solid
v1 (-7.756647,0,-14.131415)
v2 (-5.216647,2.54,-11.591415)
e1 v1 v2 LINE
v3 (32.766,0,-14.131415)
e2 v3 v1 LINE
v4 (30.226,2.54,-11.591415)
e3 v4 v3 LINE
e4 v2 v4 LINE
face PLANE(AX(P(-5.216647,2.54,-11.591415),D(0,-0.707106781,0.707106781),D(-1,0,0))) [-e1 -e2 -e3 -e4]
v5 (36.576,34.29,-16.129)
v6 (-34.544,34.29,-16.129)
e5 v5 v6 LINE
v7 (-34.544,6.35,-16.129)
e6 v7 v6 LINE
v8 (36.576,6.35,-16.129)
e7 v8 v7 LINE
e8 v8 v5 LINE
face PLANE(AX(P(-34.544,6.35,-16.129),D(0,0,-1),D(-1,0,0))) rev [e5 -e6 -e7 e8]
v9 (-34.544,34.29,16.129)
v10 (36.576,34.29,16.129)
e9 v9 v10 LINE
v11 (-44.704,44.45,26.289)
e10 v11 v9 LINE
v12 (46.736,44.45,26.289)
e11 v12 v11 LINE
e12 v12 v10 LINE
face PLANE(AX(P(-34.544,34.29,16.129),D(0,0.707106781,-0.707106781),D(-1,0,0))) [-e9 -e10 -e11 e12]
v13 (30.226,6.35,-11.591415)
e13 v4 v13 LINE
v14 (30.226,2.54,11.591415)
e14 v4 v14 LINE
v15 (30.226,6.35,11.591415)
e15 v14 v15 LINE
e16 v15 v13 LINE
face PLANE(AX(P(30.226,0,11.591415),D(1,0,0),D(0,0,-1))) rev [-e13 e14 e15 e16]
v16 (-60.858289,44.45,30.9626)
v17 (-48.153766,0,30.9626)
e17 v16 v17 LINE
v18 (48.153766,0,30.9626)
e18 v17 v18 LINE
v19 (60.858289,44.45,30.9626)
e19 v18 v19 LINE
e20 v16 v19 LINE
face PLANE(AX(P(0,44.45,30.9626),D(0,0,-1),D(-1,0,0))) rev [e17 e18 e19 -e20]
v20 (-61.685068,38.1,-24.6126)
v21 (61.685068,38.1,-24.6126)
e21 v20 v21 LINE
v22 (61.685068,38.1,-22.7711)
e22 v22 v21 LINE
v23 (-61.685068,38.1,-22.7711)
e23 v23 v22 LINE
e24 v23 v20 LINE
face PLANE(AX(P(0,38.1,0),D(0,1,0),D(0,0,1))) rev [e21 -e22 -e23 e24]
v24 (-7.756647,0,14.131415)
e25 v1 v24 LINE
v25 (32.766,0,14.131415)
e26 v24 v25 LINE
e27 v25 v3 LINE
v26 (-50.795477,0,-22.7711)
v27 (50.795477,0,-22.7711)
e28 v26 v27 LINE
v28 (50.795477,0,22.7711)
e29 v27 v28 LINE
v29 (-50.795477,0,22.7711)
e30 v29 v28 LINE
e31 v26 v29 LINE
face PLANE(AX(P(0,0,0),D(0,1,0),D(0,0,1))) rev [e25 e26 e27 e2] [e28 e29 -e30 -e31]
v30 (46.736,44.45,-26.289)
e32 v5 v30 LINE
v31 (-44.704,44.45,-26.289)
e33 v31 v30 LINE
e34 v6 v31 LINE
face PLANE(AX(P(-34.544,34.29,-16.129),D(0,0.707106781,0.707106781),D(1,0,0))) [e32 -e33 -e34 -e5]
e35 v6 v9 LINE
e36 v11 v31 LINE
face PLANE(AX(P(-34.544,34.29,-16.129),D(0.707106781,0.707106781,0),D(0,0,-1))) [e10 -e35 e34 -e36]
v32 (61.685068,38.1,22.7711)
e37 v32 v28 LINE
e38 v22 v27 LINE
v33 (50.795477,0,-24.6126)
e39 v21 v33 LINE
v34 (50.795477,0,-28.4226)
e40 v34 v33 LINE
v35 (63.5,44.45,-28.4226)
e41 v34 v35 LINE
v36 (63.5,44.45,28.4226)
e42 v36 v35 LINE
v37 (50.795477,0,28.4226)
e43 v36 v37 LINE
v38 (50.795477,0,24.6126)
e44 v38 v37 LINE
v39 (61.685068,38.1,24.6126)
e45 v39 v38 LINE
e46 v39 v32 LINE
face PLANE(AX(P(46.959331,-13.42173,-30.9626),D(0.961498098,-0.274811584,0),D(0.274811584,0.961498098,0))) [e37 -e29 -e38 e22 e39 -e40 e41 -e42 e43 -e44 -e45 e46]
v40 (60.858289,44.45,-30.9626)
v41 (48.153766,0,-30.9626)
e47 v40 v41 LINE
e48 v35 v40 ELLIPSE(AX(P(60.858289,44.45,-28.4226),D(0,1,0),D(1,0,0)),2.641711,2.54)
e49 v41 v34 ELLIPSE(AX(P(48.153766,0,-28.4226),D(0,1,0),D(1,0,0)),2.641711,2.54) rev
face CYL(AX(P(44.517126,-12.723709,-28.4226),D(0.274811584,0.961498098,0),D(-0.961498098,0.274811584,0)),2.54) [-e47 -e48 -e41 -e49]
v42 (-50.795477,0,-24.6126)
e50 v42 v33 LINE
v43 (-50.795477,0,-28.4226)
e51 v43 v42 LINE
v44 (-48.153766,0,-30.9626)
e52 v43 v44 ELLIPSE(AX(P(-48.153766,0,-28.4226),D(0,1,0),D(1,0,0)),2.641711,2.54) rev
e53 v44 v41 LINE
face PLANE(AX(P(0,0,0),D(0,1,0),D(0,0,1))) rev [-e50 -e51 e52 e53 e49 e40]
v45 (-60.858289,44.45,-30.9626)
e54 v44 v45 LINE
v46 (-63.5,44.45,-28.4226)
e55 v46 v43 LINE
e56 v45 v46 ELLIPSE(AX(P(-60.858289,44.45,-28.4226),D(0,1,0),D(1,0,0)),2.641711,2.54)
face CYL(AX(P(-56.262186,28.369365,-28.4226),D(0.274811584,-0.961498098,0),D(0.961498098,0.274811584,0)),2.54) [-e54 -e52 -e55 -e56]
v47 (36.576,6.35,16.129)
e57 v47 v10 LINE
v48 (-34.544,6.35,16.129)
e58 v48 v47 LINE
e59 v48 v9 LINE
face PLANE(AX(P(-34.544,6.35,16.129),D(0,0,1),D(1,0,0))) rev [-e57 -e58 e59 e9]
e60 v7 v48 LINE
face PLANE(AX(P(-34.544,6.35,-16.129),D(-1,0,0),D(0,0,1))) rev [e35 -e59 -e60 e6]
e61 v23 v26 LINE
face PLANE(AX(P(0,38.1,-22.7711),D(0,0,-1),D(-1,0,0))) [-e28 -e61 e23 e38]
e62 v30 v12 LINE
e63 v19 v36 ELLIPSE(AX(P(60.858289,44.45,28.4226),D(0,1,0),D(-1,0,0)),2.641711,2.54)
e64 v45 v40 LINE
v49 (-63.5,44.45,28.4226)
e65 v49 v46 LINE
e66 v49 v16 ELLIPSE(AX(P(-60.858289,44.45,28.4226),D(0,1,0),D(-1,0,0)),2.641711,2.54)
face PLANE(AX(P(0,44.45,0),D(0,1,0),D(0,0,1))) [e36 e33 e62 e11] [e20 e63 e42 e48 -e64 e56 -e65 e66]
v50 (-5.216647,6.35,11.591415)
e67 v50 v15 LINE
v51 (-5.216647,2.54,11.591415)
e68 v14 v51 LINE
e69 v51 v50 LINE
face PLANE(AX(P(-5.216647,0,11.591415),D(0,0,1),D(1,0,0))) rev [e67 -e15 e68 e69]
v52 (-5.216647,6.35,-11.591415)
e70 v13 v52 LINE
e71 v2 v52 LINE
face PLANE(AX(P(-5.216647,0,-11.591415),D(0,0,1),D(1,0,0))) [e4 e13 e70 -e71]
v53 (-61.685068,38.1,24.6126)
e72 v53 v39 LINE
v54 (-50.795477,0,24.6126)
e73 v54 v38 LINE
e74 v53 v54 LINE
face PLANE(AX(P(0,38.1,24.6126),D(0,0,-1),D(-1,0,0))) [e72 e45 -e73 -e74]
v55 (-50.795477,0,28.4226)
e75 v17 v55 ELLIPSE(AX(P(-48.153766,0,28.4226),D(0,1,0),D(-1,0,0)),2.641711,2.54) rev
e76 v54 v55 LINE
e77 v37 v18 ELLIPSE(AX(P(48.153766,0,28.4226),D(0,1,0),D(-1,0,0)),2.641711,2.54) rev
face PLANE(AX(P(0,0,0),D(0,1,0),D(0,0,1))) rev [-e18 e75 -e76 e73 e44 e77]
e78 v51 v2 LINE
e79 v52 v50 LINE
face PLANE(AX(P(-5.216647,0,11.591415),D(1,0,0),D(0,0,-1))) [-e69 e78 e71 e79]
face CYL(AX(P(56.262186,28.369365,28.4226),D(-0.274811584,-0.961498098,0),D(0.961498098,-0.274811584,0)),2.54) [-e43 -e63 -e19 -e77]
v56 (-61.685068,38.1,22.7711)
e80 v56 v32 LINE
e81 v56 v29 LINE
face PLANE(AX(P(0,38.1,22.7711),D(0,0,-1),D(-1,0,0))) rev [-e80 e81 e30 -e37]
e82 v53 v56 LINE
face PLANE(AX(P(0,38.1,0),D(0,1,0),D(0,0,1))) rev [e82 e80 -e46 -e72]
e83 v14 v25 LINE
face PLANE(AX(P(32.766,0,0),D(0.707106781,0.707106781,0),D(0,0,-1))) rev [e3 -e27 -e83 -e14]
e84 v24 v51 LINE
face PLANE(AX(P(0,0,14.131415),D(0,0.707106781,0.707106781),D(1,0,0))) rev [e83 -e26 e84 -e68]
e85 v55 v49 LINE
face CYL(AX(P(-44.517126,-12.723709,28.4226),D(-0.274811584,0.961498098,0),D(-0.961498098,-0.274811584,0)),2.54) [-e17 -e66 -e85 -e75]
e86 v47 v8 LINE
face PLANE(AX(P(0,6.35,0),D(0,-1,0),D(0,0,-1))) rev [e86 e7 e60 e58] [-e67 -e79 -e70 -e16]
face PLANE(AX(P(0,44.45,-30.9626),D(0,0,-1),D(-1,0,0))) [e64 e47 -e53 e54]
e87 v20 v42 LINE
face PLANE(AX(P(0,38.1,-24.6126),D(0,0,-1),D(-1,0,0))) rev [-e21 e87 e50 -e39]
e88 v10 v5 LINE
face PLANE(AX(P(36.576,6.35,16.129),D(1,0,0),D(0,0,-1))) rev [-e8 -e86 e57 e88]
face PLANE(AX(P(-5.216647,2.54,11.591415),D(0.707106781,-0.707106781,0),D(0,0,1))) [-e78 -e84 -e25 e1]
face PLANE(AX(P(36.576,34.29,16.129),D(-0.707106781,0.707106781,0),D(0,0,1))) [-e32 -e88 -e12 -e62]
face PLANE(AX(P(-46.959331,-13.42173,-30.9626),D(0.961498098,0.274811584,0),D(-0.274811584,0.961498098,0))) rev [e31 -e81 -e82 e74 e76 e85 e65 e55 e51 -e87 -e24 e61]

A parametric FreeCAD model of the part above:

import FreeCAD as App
import Part
import Sketcher
Q = App.Units.Quantity


def edges_at(feature, points):
    """Names of the edges that pass closest to the given points."""
    edges = feature.Shape.Edges
    near = lambda p: min(range(len(edges)), key=lambda i: edges[i].distToShape(Part.Vertex(*p))[0])
    return sorted({f"Edge{near(p) + 1}" for p in points})

doc = App.newDocument("Part")
body = doc.addObject("PartDesign::Body", "Body")

sketch1 = doc.addObject("Sketcher::SketchObject", "Sketch")
body.addObject(sketch1)
sketch1.AttachmentSupport = (doc.XZ_Plane, [""])
sketch1.MapMode = "FlatFace"
sketch1.addGeometry(Part.LineSegment(App.Vector(-64, -31, 0), App.Vector(-64, 31, 0)), False)
sketch1.addGeometry(Part.LineSegment(App.Vector(-64, 31, 0), App.Vector(64, 31, 0)), False)
sketch1.addGeometry(Part.LineSegment(App.Vector(64, 31, 0), App.Vector(64, -31, 0)), False)
sketch1.addGeometry(Part.LineSegment(App.Vector(64, -31, 0), App.Vector(-64, -31, 0)), False)
sketch1.addConstraint(Sketcher.Constraint("Coincident", 0, 2, 1, 1))
sketch1.addConstraint(Sketcher.Constraint("Coincident", 1, 2, 2, 1))
sketch1.addConstraint(Sketcher.Constraint("Coincident", 2, 2, 3, 1))
sketch1.addConstraint(Sketcher.Constraint("Coincident", 3, 2, 0, 1))
sketch1.addConstraint(Sketcher.Constraint("Vertical", 0))
sketch1.addConstraint(Sketcher.Constraint("Horizontal", 1))
sketch1.addConstraint(Sketcher.Constraint("Vertical", 2))
sketch1.addConstraint(Sketcher.Constraint("Horizontal", 3))
sketch1.addConstraint(Sketcher.Constraint("Symmetric", 0, 2, 2, 2, -1, 1))
sketch1.addConstraint(Sketcher.Constraint("DistanceX", 1, 1, 1, 2, Q("5 in")))
sketch1.addConstraint(Sketcher.Constraint("DistanceY", 0, 1, 0, 2, Q("2.438 in")))
pad1 = doc.addObject("PartDesign::Pad", "Pad")
body.addObject(pad1)
pad1.Profile = sketch1
pad1.Length = Q("1.75 in")
pad1.Reversed = True

sketch2 = doc.addObject("Sketcher::SketchObject", "Sketch001")
body.addObject(sketch2)
sketch2.AttachmentSupport = (doc.XZ_Plane, [""])
sketch2.MapMode = "FlatFace"
sketch2.addGeometry(Part.LineSegment(App.Vector(-63.5, -24.6, 0), App.Vector(-63.5, -22.8, 0)), False)
sketch2.addGeometry(Part.LineSegment(App.Vector(-63.5, -22.8, 0), App.Vector(63.5, -22.8, 0)), False)
sketch2.addGeometry(Part.LineSegment(App.Vector(63.5, -22.8, 0), App.Vector(63.5, -24.6, 0)), False)
sketch2.addGeometry(Part.LineSegment(App.Vector(63.5, -24.6, 0), App.Vector(-63.5, -24.6, 0)), False)
sketch2.addGeometry(Part.LineSegment(App.Vector(-63.5, 22.8, 0), App.Vector(-63.5, 24.6, 0)), False)
sketch2.addGeometry(Part.LineSegment(App.Vector(-63.5, 24.6, 0), App.Vector(63.5, 24.6, 0)), False)
sketch2.addGeometry(Part.LineSegment(App.Vector(63.5, 24.6, 0), App.Vector(63.5, 22.8, 0)), False)
sketch2.addGeometry(Part.LineSegment(App.Vector(63.5, 22.8, 0), App.Vector(-63.5, 22.8, 0)), False)
sketch2.addConstraint(Sketcher.Constraint("Coincident", 0, 2, 1, 1))
sketch2.addConstraint(Sketcher.Constraint("Coincident", 1, 2, 2, 1))
sketch2.addConstraint(Sketcher.Constraint("Coincident", 2, 2, 3, 1))
sketch2.addConstraint(Sketcher.Constraint("Coincident", 3, 2, 0, 1))
sketch2.addConstraint(Sketcher.Constraint("Coincident", 4, 2, 5, 1))
sketch2.addConstraint(Sketcher.Constraint("Coincident", 5, 2, 6, 1))
sketch2.addConstraint(Sketcher.Constraint("Coincident", 6, 2, 7, 1))
sketch2.addConstraint(Sketcher.Constraint("Coincident", 7, 2, 4, 1))
sketch2.addConstraint(Sketcher.Constraint("Vertical", 0))
sketch2.addConstraint(Sketcher.Constraint("Horizontal", 1))
sketch2.addConstraint(Sketcher.Constraint("Vertical", 2))
sketch2.addConstraint(Sketcher.Constraint("Horizontal", 3))
sketch2.addConstraint(Sketcher.Constraint("Vertical", 4))
sketch2.addConstraint(Sketcher.Constraint("Horizontal", 5))
sketch2.addConstraint(Sketcher.Constraint("Vertical", 6))
sketch2.addConstraint(Sketcher.Constraint("Horizontal", 7))
sketch2.addConstraint(Sketcher.Constraint("Symmetric", 2, 2, 4, 2, -1, 1))
sketch2.addConstraint(Sketcher.Constraint("Symmetric", 0, 2, 6, 2, -1, 1))
sketch2.addConstraint(Sketcher.Constraint("Vertical", 3, 2, 4, 2))
sketch2.addConstraint(Sketcher.Constraint("DistanceX", 1, 1, 1, 2, Q("5 in")))
sketch2.addConstraint(Sketcher.Constraint("DistanceY", 0, 1, 0, 2, Q("0.0725 in")))
sketch2.addConstraint(Sketcher.Constraint("DistanceY", 2, 2, -1, 1, Q("0.969 in")))
pocket1 = doc.addObject("PartDesign::Pocket", "Pocket")
body.addObject(pocket1)
pocket1.Profile = sketch2
pocket1.Length = Q("1.5 in")

sketch3 = doc.addObject("Sketcher::SketchObject", "Sketch002")
body.addObject(sketch3)
sketch3.AttachmentSupport = (doc.XZ_Plane, [""])
sketch3.MapMode = "FlatFace"
sketch3.AttachmentOffset = App.Placement(App.Vector(0, 0, -1.75 * 25.4), App.Rotation())
sketch3.addGeometry(Part.LineSegment(App.Vector(-35, -16, 0), App.Vector(-35, 16, 0)), False)
sketch3.addGeometry(Part.LineSegment(App.Vector(-35, 16, 0), App.Vector(37, 16, 0)), False)
sketch3.addGeometry(Part.LineSegment(App.Vector(37, 16, 0), App.Vector(37, -16, 0)), False)
sketch3.addGeometry(Part.LineSegment(App.Vector(37, -16, 0), App.Vector(-35, -16, 0)), False)
sketch3.addGeometry(Part.LineSegment(App.Vector(30, 12, 0), App.Vector(-5, 12, 0)), False)
sketch3.addGeometry(Part.LineSegment(App.Vector(-5, 12, 0), App.Vector(-5, -12, 0)), False)
sketch3.addGeometry(Part.LineSegment(App.Vector(-5, -12, 0), App.Vector(30, -12, 0)), False)
sketch3.addGeometry(Part.LineSegment(App.Vector(30, -12, 0), App.Vector(30, 12, 0)), False)
sketch3.addConstraint(Sketcher.Constraint("Coincident", 0, 2, 1, 1))
sketch3.addConstraint(Sketcher.Constraint("Coincident", 1, 2, 2, 1))
sketch3.addConstraint(Sketcher.Constraint("Coincident", 2, 2, 3, 1))
sketch3.addConstraint(Sketcher.Constraint("Coincident", 3, 2, 0, 1))
sketch3.addConstraint(Sketcher.Constraint("Coincident", 4, 2, 5, 1))
sketch3.addConstraint(Sketcher.Constraint("Coincident", 5, 2, 6, 1))
sketch3.addConstraint(Sketcher.Constraint("Coincident", 6, 2, 7, 1))
sketch3.addConstraint(Sketcher.Constraint("Coincident", 7, 2, 4, 1))
sketch3.addConstraint(Sketcher.Constraint("Vertical", 0))
sketch3.addConstraint(Sketcher.Constraint("Horizontal", 1))
sketch3.addConstraint(Sketcher.Constraint("Vertical", 2))
sketch3.addConstraint(Sketcher.Constraint("Horizontal", 3))
sketch3.addConstraint(Sketcher.Constraint("Horizontal", 4))
sketch3.addConstraint(Sketcher.Constraint("Vertical", 5))
sketch3.addConstraint(Sketcher.Constraint("Horizontal", 6))
sketch3.addConstraint(Sketcher.Constraint("Vertical", 7))
sketch3.addConstraint(Sketcher.Constraint("DistanceX", 1, 1, 1, 2, Q("2.8 in")))
sketch3.addConstraint(Sketcher.Constraint("DistanceY", 0, 1, 0, 2, Q("1.27 in")))
sketch3.addConstraint(Sketcher.Constraint("DistanceX", 0, 2, -1, 1, Q("1.36 in")))
sketch3.addConstraint(Sketcher.Constraint("DistanceX", -1, 1, 6, 2, Q("1.19 in")))
sketch3.addConstraint(Sketcher.Constraint("DistanceY", -1, 1, 0, 2, Q("0.635 in")))
sketch3.addConstraint(Sketcher.Constraint("DistanceY", 5, 2, 5, 1, Q("23.182829 mm")))
sketch3.addConstraint(Sketcher.Constraint("DistanceX", 4, 2, 4, 1, Q("35.442647 mm")))
sketch3.addConstraint(Sketcher.Constraint("DistanceY", -1, 1, 4, 2, Q("11.591415 mm")))
pocket2 = doc.addObject("PartDesign::Pocket", "Pocket001")
body.addObject(pocket2)
pocket2.Profile = sketch3
pocket2.Length = Q("1.5 in")
pocket2.Reversed = True
doc.recompute()

chamfer = doc.addObject("PartDesign::Chamfer", "Chamfer")
body.addObject(chamfer)
chamfer.Base = (pocket2, edges_at(pocket2, [
    (36.576, 44.45, 0),
    (1.016, 44.45, -16.129),
    (-34.544, 44.45, 0),
    (1.016, 44.45, 16.129),
]))
chamfer.Size = Q("0.4 in")

sketch4 = doc.addObject("Sketcher::SketchObject", "Sketch003")
body.addObject(sketch4)
sketch4.AttachmentSupport = (doc.XY_Plane, [""])
sketch4.MapMode = "FlatFace"
sketch4.AttachmentOffset = App.Placement(App.Vector(0, 0, 1.219 * 25.4), App.Rotation())
sketch4.addGeometry(Part.LineSegment(App.Vector(-51, 0, 0), App.Vector(-64, 44, 0)), False)
sketch4.addGeometry(Part.LineSegment(App.Vector(-64, 44, 0), App.Vector(-64, 0, 0)), False)
sketch4.addGeometry(Part.LineSegment(App.Vector(-64, 0, 0), App.Vector(-51, 0, 0)), False)
sketch4.addGeometry(Part.LineSegment(App.Vector(64, 44, 0), App.Vector(51, 0, 0)), False)
sketch4.addGeometry(Part.LineSegment(App.Vector(51, 0, 0), App.Vector(64, 0, 0)), False)
sketch4.addGeometry(Part.LineSegment(App.Vector(64, 0, 0), App.Vector(64, 44, 0)), False)
sketch4.addConstraint(Sketcher.Constraint("Coincident", 0, 2, 1, 1))
sketch4.addConstraint(Sketcher.Constraint("Coincident", 1, 2, 2, 1))
sketch4.addConstraint(Sketcher.Constraint("Coincident", 2, 2, 0, 1))
sketch4.addConstraint(Sketcher.Constraint("Coincident", 3, 2, 4, 1))
sketch4.addConstraint(Sketcher.Constraint("Coincident", 4, 2, 5, 1))
sketch4.addConstraint(Sketcher.Constraint("Coincident", 5, 2, 3, 1))
sketch4.addConstraint(Sketcher.Constraint("Vertical", 1))
sketch4.addConstraint(Sketcher.Constraint("Horizontal", 2))
sketch4.addConstraint(Sketcher.Constraint("Horizontal", 4))
sketch4.addConstraint(Sketcher.Constraint("Vertical", 5))
sketch4.addConstraint(Sketcher.Constraint("Symmetric", 2, 2, 3, 2, -1, 1))
sketch4.addConstraint(Sketcher.Constraint("Symmetric", 1, 2, 4, 2, -2))
sketch4.addConstraint(Sketcher.Constraint("Horizontal", 0, 2, 5, 2))
sketch4.addConstraint(Sketcher.Constraint("DistanceX", 1, 2, 4, 2, Q("5 in")))
sketch4.addConstraint(Sketcher.Constraint("DistanceY", 1, 2, 1, 1, Q("1.75 in")))
sketch4.addConstraint(Sketcher.Constraint("Distance", 0, Q("46.229941 mm")))
pocket3 = doc.addObject("PartDesign::Pocket", "Pocket002")
body.addObject(pocket3)
pocket3.Profile = sketch4
pocket3.Type = "ThroughAll"
doc.recompute()

fillet = doc.addObject("PartDesign::Fillet", "Fillet")
body.addObject(fillet)
fillet.Base = (pocket3, edges_at(pocket3, [
    (-57.148, 22.225, -30.963),
    (-57.148, 22.225, 30.963),
    (57.148, 22.225, 30.963),
    (57.148, 22.225, -30.963),
]))
fillet.Radius = Q("0.1 in")

sketch5 = doc.addObject("Sketcher::SketchObject", "Sketch004")
body.addObject(sketch5)
sketch5.AttachmentSupport = (doc.XZ_Plane, [""])
sketch5.MapMode = "FlatFace"
sketch5.AttachmentOffset = App.Placement(App.Vector(0, 0, -1.75 * 25.4), App.Rotation())
sketch5.addGeometry(Part.LineSegment(App.Vector(-5, -12, 0), App.Vector(-5, 12, 0)), False)
sketch5.addGeometry(Part.LineSegment(App.Vector(-5, 12, 0), App.Vector(30, 12, 0)), False)
sketch5.addGeometry(Part.LineSegment(App.Vector(30, 12, 0), App.Vector(30, -12, 0)), False)
sketch5.addGeometry(Part.LineSegment(App.Vector(30, -12, 0), App.Vector(-5, -12, 0)), False)
sketch5.addConstraint(Sketcher.Constraint("Coincident", 0, 2, 1, 1))
sketch5.addConstraint(Sketcher.Constraint("Coincident", 1, 2, 2, 1))
sketch5.addConstraint(Sketcher.Constraint("Coincident", 2, 2, 3, 1))
sketch5.addConstraint(Sketcher.Constraint("Coincident", 3, 2, 0, 1))
sketch5.addConstraint(Sketcher.Constraint("Vertical", 0))
sketch5.addConstraint(Sketcher.Constraint("Horizontal", 1))
sketch5.addConstraint(Sketcher.Constraint("Vertical", 2))
sketch5.addConstraint(Sketcher.Constraint("Horizontal", 3))
sketch5.addConstraint(Sketcher.Constraint("DistanceX", -1, 1, 1, 2, Q("1.19 in")))
sketch5.addConstraint(Sketcher.Constraint("DistanceY", 0, 1, 0, 2, Q("23.182829 mm")))
sketch5.addConstraint(Sketcher.Constraint("DistanceX", 1, 1, 1, 2, Q("35.442647 mm")))
sketch5.addConstraint(Sketcher.Constraint("DistanceY", -1, 1, 0, 2, Q("11.591415 mm")))
pocket4 = doc.addObject("PartDesign::Pocket", "Pocket003")
body.addObject(pocket4)
pocket4.Profile = sketch5
pocket4.Type = "ThroughAll"
pocket4.Reversed = True
doc.recompute()

chamfer2 = doc.addObject("PartDesign::Chamfer", "Chamfer001")
body.addObject(chamfer2)
chamfer2.Base = (pocket4, edges_at(pocket4, [
    (30.226, 0, 0),
    (12.505, 0, 11.591),
    (-5.217, 0, 0),
    (12.505, 0, -11.591),
]))
chamfer2.Size = Q("0.1 in")

doc.recompute()
